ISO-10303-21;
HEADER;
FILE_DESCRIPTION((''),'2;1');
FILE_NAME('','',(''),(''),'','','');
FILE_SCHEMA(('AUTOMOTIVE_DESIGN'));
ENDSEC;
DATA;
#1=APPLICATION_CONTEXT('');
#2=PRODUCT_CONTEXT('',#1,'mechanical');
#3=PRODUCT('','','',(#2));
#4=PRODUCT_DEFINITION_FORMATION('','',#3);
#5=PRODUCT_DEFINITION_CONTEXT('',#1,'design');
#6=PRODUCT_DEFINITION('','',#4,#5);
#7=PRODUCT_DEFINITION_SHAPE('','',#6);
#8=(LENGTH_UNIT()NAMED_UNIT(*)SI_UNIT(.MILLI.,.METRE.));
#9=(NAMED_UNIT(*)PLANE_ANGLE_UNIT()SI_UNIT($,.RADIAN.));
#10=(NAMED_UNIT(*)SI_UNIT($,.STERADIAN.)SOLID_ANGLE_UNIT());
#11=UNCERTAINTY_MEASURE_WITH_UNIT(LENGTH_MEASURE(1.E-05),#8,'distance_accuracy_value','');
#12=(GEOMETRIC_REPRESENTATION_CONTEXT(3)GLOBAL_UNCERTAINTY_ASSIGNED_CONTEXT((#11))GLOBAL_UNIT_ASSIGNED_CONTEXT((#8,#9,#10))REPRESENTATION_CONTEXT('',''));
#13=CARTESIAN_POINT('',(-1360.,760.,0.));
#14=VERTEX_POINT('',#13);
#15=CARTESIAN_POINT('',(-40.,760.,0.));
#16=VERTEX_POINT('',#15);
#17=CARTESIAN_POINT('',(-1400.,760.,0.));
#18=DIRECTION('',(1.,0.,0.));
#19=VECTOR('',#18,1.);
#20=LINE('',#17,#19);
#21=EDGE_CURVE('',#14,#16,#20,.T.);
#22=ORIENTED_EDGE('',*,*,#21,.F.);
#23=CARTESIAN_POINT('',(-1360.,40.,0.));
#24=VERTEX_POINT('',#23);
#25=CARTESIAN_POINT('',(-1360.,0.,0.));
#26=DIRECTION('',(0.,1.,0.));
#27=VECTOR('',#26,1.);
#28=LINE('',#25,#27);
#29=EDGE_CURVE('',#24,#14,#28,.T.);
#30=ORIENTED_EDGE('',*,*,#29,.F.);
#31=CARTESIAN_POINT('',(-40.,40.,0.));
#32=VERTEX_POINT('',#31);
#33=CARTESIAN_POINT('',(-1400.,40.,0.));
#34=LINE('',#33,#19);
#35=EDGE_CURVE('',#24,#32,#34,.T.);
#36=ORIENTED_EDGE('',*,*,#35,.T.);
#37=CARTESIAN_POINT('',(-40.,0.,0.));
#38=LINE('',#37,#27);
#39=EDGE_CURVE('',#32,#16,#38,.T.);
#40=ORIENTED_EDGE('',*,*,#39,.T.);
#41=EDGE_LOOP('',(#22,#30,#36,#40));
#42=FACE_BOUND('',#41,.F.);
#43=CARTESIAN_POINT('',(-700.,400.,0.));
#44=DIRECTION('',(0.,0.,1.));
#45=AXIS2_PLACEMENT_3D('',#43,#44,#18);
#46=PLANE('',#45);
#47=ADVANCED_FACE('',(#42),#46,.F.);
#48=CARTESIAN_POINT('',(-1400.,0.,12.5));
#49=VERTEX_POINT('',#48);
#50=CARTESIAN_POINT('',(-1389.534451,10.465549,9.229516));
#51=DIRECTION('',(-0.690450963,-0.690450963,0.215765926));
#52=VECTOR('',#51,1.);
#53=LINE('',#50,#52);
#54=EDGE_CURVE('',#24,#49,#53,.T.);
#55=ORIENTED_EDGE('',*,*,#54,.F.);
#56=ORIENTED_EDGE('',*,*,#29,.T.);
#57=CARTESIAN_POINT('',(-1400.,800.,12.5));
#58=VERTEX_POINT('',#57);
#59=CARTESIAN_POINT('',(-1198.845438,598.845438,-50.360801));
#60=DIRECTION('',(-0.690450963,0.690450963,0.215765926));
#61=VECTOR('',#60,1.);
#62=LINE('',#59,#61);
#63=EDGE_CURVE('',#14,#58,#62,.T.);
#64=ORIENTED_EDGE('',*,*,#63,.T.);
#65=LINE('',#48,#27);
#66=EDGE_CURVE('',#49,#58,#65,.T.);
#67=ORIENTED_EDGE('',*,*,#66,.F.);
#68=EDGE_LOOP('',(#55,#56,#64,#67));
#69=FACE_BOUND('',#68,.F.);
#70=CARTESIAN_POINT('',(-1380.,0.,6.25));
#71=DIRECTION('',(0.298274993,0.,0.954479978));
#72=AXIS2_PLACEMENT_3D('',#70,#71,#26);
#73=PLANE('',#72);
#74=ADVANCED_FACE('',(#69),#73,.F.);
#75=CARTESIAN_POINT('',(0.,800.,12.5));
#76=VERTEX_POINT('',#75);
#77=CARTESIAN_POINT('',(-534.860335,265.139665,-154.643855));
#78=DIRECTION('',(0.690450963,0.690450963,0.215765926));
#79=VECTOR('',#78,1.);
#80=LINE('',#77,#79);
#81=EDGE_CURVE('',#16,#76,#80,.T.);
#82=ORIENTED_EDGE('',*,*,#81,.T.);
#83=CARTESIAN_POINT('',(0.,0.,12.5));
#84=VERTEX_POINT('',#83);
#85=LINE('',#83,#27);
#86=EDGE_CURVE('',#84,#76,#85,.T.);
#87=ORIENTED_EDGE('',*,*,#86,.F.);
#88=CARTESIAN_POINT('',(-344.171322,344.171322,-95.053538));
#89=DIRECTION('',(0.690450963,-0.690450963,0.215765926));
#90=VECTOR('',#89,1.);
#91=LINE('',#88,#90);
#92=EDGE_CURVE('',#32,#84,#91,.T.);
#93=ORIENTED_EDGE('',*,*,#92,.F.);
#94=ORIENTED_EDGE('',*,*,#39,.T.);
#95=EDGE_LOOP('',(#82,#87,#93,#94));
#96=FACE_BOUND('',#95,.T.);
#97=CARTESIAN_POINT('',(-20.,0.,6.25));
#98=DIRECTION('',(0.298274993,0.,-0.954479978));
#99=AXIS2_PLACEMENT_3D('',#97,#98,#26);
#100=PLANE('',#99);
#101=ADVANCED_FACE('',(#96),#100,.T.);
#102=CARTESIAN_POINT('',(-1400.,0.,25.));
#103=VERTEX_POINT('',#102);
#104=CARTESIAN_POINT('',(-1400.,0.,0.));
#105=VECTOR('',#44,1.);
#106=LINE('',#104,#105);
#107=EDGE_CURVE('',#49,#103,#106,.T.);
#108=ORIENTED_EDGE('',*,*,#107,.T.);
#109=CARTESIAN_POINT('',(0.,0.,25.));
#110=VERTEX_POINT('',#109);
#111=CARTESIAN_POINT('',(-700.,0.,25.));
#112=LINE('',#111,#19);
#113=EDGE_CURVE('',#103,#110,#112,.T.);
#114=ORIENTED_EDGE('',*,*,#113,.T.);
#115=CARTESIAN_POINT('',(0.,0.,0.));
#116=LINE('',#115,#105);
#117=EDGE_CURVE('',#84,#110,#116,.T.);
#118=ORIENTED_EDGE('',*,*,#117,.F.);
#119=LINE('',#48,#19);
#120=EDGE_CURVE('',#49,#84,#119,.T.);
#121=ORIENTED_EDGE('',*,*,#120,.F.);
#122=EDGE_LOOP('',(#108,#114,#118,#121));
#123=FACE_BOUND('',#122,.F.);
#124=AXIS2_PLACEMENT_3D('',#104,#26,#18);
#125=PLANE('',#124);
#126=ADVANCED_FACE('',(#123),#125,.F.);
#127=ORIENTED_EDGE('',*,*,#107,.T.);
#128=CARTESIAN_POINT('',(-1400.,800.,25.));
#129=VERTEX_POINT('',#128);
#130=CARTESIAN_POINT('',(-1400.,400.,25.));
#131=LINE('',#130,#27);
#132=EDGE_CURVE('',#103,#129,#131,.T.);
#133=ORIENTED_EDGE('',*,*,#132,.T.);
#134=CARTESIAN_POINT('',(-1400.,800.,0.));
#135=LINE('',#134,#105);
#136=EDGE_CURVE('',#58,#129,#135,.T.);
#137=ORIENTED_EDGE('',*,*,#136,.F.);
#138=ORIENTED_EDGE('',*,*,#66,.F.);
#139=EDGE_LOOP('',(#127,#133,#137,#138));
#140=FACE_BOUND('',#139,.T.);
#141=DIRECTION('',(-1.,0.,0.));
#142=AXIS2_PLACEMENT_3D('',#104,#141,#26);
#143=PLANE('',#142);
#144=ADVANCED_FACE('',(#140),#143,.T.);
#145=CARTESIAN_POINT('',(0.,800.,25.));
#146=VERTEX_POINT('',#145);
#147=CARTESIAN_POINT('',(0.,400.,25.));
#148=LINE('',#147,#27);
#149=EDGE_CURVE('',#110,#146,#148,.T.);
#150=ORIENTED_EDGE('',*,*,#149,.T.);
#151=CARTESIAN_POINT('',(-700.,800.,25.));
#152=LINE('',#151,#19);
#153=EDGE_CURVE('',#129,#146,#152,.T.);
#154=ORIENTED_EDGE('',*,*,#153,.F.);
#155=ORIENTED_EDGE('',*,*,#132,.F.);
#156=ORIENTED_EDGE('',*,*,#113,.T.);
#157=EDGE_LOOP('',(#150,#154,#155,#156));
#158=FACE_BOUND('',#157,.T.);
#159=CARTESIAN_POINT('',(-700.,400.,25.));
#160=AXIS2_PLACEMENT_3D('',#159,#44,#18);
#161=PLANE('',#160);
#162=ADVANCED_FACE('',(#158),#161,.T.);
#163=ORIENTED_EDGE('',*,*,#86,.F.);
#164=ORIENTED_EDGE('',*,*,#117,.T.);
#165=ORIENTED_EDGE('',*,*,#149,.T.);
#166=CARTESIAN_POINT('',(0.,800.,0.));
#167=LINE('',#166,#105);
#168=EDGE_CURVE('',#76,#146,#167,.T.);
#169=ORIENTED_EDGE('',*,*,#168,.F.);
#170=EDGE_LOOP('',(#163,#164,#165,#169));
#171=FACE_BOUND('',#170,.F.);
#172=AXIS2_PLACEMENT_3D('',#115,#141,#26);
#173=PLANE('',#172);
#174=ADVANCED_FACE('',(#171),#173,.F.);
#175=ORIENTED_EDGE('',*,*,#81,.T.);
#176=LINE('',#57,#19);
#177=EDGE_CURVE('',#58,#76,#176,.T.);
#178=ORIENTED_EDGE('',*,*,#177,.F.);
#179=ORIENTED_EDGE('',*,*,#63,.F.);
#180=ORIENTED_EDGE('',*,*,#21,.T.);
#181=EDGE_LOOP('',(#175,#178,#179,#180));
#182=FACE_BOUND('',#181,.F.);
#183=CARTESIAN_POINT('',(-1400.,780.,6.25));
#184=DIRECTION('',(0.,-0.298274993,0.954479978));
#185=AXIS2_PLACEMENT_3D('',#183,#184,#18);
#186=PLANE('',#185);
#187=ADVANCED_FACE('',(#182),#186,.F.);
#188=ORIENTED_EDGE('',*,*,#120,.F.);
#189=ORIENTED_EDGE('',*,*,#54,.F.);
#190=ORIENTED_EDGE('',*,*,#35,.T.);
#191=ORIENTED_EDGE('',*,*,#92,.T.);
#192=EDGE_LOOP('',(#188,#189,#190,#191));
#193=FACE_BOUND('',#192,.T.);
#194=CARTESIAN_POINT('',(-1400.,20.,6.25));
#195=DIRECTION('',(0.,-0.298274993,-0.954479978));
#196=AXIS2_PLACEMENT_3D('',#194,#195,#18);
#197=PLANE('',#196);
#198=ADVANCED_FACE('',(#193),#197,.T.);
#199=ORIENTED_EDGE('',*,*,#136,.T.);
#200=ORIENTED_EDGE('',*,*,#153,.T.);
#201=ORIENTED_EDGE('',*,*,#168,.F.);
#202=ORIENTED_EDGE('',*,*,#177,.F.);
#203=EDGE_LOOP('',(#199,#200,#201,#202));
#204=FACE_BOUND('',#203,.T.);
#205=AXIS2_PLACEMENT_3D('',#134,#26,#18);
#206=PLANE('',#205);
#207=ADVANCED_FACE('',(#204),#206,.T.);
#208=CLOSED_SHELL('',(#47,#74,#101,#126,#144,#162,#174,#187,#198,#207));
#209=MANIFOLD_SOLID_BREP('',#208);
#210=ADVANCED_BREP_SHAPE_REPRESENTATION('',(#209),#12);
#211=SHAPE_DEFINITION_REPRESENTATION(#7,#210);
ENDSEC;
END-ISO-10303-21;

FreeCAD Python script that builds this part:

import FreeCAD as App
import Part
import Sketcher
Q = App.Units.Quantity


def edges_at(feature, points):
    """Names of the edges that pass closest to the given points."""
    edges = feature.Shape.Edges
    near = lambda p: min(range(len(edges)), key=lambda i: edges[i].distToShape(Part.Vertex(*p))[0])
    return sorted({f"Edge{near(p) + 1}" for p in points})

doc = App.newDocument("Part")
body = doc.addObject("PartDesign::Body", "Body")

sketch1 = body.newObject("Sketcher::SketchObject", "Sketch")
sketch1.AttachmentSupport = (doc.getObject("XY_Plane"), [""])
sketch1.MapMode = "FlatFace"
sketch1.addGeometry(Part.LineSegment(App.Vector(-1400, 800, 0), App.Vector(-1400, 0, 0)), False)
sketch1.addGeometry(Part.LineSegment(App.Vector(-1400, 0, 0), App.Vector(0, 0, 0)), False)
sketch1.addGeometry(Part.LineSegment(App.Vector(0, 0, 0), App.Vector(0, 800, 0)), False)
sketch1.addGeometry(Part.LineSegment(App.Vector(0, 800, 0), App.Vector(-1400, 800, 0)), False)
sketch1.addConstraint(Sketcher.Constraint("Coincident", 0, 2, 1, 1))
sketch1.addConstraint(Sketcher.Constraint("Coincident", 1, 2, 2, 1))
sketch1.addConstraint(Sketcher.Constraint("Coincident", 2, 2, 3, 1))
sketch1.addConstraint(Sketcher.Constraint("Coincident", 3, 2, 0, 1))
sketch1.addConstraint(Sketcher.Constraint("Vertical", 0))
sketch1.addConstraint(Sketcher.Constraint("Horizontal", 1))
sketch1.addConstraint(Sketcher.Constraint("Vertical", 2))
sketch1.addConstraint(Sketcher.Constraint("Horizontal", 3))
sketch1.addConstraint(Sketcher.Constraint("Coincident", 1, 2, -1, 1))
sketch1.addConstraint(Sketcher.Constraint("DistanceX", 1, 1, 1, 2, Q("1400 mm")))
sketch1.addConstraint(Sketcher.Constraint("DistanceY", 0, 2, 0, 1, Q("800 mm")))
pad1 = body.newObject("PartDesign::Pad", "Pad")
pad1.Profile = sketch1
pad1.Length = 25
doc.recompute()

chamfer = body.newObject("PartDesign::Chamfer", "Chamfer")
chamfer.Base = (pad1, edges_at(pad1, [
    (-700, 0, 0),
    (0, 400, 0),
    (-700, 800, 0),
    (-1400, 400, 0),
]))
chamfer.ChamferType = "Two distances"
chamfer.Size = 40
chamfer.Size2 = 12.5
chamfer.FlipDirection = True

doc.recompute()
